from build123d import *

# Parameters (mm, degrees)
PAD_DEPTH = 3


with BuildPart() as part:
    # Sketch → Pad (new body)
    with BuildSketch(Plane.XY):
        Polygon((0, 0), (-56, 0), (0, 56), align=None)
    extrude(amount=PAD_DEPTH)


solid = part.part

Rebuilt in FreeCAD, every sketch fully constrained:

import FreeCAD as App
import Part
import Sketcher
from FreeCAD import Vector
Q = App.Units.Quantity

doc = App.newDocument("Part")
params = doc.addObject("Spreadsheet::Sheet", "Params")
for row, (alias, value) in enumerate([
    ("sketch1_width", "56 mm"),
    ("pad1_length", "3 mm"),
], start=1):
    params.set(f"A{row}", alias)
    params.set(f"B{row}", "=" + value)
    params.setAlias(f"B{row}", alias)

body = doc.addObject("PartDesign::Body", "Body")

# Sketch on XY plane
sketch1 = body.newObject("Sketcher::SketchObject", "Sketch")
sketch1.AttachmentSupport = (doc.getObject("XY_Plane"), [""])
sketch1.MapMode = "FlatFace"
sketch1.addGeometry(Part.LineSegment(Vector(-56, 0, 0), Vector(0, 0, 0)), False)
sketch1.addGeometry(Part.LineSegment(Vector(0, 0, 0), Vector(0, 56, 0)), False)
sketch1.addGeometry(Part.LineSegment(Vector(0, 56, 0), Vector(-56, 0, 0)), False)
sketch1.addConstraint(Sketcher.Constraint("Coincident", 0, 2, 1, 1))
sketch1.addConstraint(Sketcher.Constraint("Coincident", 1, 2, 2, 1))
sketch1.addConstraint(Sketcher.Constraint("Coincident", 2, 2, 0, 1))
sketch1.addConstraint(Sketcher.Constraint("Horizontal", 0))
sketch1.addConstraint(Sketcher.Constraint("Vertical", 1))
sketch1.addConstraint(Sketcher.Constraint("Coincident", 0, 2, -1, 1))
sketch1.addConstraint(Sketcher.Constraint("Equal", 0, 1))
sketch1.addConstraint(Sketcher.Constraint("DistanceX", 0, 1, 0, 2, Q("56 mm")))
sketch1.setExpression("Constraints[7]", "Params.sketch1_width")
pad1 = body.newObject("PartDesign::Pad", "Pad")
pad1.Profile = sketch1
pad1.setExpression("Length", "Params.pad1_length")

doc.recompute()
